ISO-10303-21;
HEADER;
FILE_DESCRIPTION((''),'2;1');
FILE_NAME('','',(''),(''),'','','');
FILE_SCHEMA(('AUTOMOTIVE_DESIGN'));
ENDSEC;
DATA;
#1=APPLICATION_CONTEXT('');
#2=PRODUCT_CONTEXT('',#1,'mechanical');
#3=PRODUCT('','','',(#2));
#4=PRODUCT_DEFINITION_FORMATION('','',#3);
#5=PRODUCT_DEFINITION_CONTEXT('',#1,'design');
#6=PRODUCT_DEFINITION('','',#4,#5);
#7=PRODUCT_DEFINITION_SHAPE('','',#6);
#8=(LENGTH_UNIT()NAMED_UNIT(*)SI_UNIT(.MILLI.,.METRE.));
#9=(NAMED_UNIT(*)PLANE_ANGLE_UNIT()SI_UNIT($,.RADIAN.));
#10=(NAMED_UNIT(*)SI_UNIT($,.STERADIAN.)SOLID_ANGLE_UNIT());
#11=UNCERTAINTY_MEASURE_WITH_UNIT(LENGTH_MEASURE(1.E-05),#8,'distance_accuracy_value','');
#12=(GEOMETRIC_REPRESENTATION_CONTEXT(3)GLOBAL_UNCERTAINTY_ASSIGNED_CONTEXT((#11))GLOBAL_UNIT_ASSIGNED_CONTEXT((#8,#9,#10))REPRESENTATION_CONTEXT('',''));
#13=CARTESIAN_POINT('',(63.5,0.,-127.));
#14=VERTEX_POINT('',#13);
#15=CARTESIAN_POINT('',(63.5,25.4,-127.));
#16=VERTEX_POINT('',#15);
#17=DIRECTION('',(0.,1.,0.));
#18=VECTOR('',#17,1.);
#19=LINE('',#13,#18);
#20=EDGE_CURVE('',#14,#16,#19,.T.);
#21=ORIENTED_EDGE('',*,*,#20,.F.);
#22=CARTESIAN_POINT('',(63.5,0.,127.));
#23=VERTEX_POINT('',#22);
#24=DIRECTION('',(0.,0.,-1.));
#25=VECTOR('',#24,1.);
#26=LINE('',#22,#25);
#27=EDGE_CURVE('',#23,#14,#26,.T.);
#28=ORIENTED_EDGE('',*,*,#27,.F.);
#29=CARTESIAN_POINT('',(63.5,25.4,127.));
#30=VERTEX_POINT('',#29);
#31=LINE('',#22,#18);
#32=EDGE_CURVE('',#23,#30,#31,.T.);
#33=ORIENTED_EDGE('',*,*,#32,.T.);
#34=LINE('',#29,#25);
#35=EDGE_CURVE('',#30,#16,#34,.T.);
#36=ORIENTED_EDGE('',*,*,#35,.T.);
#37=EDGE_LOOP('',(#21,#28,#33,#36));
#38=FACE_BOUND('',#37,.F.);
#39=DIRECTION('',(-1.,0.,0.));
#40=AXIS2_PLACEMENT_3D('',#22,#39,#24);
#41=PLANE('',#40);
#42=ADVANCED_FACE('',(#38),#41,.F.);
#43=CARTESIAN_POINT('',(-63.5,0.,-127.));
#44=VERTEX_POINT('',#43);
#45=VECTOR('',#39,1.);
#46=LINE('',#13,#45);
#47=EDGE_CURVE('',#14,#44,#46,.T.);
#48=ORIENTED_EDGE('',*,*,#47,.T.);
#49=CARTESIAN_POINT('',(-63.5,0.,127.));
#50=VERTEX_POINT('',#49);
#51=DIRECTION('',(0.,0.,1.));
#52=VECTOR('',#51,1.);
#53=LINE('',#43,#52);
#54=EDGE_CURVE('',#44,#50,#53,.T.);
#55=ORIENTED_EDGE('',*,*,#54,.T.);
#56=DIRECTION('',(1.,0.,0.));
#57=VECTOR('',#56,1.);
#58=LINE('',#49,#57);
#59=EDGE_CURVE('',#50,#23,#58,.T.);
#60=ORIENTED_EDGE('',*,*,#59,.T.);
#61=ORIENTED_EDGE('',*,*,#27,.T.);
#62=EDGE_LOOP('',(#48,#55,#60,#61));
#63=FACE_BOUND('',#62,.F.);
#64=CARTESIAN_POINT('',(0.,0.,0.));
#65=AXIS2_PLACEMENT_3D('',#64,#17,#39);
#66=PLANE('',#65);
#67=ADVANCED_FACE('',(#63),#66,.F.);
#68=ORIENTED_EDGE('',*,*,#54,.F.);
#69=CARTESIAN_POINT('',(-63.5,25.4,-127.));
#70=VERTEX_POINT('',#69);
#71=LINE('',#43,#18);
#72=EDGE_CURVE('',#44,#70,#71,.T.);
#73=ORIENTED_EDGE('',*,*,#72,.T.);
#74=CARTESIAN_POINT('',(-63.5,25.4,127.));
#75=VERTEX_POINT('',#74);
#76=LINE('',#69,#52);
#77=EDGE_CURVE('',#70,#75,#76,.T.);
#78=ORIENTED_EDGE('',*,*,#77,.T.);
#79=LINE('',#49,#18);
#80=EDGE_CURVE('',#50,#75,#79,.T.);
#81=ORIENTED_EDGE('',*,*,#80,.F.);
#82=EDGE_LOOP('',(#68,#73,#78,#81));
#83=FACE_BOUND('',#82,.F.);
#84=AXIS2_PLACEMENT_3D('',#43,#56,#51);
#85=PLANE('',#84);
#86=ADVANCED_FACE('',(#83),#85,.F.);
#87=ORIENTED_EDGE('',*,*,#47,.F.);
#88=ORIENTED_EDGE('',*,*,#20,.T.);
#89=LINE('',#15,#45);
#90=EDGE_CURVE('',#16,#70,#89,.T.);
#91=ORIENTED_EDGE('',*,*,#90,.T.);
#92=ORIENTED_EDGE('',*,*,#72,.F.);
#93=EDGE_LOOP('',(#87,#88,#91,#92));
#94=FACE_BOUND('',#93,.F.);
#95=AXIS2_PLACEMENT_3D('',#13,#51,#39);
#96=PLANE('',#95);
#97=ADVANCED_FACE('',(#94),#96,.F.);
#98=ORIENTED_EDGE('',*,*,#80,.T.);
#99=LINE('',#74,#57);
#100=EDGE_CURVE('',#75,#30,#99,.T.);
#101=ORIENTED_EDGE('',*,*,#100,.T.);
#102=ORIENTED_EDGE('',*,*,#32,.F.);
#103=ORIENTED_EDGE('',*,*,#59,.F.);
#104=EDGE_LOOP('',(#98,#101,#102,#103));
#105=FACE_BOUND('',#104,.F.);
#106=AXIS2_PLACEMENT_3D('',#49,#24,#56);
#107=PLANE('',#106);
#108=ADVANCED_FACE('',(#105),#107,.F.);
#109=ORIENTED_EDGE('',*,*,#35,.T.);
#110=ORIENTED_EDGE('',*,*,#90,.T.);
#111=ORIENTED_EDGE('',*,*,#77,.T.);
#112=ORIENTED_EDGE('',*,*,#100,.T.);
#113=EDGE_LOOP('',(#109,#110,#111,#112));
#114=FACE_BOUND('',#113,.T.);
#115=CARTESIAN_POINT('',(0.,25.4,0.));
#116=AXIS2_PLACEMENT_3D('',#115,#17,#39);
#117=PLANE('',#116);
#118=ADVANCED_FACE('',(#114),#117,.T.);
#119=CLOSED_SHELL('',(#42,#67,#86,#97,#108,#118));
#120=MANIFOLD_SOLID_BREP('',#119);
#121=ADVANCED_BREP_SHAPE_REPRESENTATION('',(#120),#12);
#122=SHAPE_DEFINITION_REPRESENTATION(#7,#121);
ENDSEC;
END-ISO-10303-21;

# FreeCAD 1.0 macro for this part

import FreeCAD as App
import Part
import Sketcher
Q = App.Units.Quantity


def add_polygon(sketch, points):
    """Adds a closed chain of lines whose ends are joined by coincident constraints."""
    first, n = sketch.GeometryCount, len(points)
    for a, b in zip(points, points[1:] + points[:1]):
        sketch.addGeometry(Part.LineSegment(App.Vector(*a, 0), App.Vector(*b, 0)), False)
    for i in range(n):
        sketch.addConstraint(Sketcher.Constraint("Coincident", first + i, 2, first + (i + 1) % n, 1))

doc = App.newDocument("Part")
params = doc.addObject("Spreadsheet::Sheet", "Params")
for row, (alias, value) in enumerate([
    ("sketch1_width", "5 in"),
    ("sketch1_height", "10 in"),
    ("pad1_length", "1 in"),
], start=1):
    params.set(f"A{row}", alias)
    params.set(f"B{row}", "=" + value)
    params.setAlias(f"B{row}", alias)

body = doc.addObject("PartDesign::Body", "Body")

# Sketch on XZ plane
sketch1 = body.newObject("Sketcher::SketchObject", "Sketch")
sketch1.AttachmentSupport = (doc.getObject("XZ_Plane"), [""])
sketch1.MapMode = "FlatFace"
add_polygon(sketch1, [(-64, 127), (64, 127), (64, -127), (-64, -127)])  # lines 0-3
sketch1.addConstraint(Sketcher.Constraint("Horizontal", 0))
sketch1.addConstraint(Sketcher.Constraint("Vertical", 1))
sketch1.addConstraint(Sketcher.Constraint("Horizontal", 2))
sketch1.addConstraint(Sketcher.Constraint("Vertical", 3))
sketch1.addConstraint(Sketcher.Constraint("Symmetric", 0, 2, 2, 2, -1, 1))
sketch1.addConstraint(Sketcher.Constraint("DistanceX", 0, 1, 0, 2, Q("5 in")))
sketch1.addConstraint(Sketcher.Constraint("DistanceY", 1, 2, 1, 1, Q("10 in")))
sketch1.setExpression("Constraints[9]", "Params.sketch1_width")
sketch1.setExpression("Constraints[10]", "Params.sketch1_height")
pad1 = body.newObject("PartDesign::Pad", "Pad")
pad1.Profile = sketch1
pad1.setExpression("Length", "Params.pad1_length")
pad1.Reversed = True

doc.recompute()
